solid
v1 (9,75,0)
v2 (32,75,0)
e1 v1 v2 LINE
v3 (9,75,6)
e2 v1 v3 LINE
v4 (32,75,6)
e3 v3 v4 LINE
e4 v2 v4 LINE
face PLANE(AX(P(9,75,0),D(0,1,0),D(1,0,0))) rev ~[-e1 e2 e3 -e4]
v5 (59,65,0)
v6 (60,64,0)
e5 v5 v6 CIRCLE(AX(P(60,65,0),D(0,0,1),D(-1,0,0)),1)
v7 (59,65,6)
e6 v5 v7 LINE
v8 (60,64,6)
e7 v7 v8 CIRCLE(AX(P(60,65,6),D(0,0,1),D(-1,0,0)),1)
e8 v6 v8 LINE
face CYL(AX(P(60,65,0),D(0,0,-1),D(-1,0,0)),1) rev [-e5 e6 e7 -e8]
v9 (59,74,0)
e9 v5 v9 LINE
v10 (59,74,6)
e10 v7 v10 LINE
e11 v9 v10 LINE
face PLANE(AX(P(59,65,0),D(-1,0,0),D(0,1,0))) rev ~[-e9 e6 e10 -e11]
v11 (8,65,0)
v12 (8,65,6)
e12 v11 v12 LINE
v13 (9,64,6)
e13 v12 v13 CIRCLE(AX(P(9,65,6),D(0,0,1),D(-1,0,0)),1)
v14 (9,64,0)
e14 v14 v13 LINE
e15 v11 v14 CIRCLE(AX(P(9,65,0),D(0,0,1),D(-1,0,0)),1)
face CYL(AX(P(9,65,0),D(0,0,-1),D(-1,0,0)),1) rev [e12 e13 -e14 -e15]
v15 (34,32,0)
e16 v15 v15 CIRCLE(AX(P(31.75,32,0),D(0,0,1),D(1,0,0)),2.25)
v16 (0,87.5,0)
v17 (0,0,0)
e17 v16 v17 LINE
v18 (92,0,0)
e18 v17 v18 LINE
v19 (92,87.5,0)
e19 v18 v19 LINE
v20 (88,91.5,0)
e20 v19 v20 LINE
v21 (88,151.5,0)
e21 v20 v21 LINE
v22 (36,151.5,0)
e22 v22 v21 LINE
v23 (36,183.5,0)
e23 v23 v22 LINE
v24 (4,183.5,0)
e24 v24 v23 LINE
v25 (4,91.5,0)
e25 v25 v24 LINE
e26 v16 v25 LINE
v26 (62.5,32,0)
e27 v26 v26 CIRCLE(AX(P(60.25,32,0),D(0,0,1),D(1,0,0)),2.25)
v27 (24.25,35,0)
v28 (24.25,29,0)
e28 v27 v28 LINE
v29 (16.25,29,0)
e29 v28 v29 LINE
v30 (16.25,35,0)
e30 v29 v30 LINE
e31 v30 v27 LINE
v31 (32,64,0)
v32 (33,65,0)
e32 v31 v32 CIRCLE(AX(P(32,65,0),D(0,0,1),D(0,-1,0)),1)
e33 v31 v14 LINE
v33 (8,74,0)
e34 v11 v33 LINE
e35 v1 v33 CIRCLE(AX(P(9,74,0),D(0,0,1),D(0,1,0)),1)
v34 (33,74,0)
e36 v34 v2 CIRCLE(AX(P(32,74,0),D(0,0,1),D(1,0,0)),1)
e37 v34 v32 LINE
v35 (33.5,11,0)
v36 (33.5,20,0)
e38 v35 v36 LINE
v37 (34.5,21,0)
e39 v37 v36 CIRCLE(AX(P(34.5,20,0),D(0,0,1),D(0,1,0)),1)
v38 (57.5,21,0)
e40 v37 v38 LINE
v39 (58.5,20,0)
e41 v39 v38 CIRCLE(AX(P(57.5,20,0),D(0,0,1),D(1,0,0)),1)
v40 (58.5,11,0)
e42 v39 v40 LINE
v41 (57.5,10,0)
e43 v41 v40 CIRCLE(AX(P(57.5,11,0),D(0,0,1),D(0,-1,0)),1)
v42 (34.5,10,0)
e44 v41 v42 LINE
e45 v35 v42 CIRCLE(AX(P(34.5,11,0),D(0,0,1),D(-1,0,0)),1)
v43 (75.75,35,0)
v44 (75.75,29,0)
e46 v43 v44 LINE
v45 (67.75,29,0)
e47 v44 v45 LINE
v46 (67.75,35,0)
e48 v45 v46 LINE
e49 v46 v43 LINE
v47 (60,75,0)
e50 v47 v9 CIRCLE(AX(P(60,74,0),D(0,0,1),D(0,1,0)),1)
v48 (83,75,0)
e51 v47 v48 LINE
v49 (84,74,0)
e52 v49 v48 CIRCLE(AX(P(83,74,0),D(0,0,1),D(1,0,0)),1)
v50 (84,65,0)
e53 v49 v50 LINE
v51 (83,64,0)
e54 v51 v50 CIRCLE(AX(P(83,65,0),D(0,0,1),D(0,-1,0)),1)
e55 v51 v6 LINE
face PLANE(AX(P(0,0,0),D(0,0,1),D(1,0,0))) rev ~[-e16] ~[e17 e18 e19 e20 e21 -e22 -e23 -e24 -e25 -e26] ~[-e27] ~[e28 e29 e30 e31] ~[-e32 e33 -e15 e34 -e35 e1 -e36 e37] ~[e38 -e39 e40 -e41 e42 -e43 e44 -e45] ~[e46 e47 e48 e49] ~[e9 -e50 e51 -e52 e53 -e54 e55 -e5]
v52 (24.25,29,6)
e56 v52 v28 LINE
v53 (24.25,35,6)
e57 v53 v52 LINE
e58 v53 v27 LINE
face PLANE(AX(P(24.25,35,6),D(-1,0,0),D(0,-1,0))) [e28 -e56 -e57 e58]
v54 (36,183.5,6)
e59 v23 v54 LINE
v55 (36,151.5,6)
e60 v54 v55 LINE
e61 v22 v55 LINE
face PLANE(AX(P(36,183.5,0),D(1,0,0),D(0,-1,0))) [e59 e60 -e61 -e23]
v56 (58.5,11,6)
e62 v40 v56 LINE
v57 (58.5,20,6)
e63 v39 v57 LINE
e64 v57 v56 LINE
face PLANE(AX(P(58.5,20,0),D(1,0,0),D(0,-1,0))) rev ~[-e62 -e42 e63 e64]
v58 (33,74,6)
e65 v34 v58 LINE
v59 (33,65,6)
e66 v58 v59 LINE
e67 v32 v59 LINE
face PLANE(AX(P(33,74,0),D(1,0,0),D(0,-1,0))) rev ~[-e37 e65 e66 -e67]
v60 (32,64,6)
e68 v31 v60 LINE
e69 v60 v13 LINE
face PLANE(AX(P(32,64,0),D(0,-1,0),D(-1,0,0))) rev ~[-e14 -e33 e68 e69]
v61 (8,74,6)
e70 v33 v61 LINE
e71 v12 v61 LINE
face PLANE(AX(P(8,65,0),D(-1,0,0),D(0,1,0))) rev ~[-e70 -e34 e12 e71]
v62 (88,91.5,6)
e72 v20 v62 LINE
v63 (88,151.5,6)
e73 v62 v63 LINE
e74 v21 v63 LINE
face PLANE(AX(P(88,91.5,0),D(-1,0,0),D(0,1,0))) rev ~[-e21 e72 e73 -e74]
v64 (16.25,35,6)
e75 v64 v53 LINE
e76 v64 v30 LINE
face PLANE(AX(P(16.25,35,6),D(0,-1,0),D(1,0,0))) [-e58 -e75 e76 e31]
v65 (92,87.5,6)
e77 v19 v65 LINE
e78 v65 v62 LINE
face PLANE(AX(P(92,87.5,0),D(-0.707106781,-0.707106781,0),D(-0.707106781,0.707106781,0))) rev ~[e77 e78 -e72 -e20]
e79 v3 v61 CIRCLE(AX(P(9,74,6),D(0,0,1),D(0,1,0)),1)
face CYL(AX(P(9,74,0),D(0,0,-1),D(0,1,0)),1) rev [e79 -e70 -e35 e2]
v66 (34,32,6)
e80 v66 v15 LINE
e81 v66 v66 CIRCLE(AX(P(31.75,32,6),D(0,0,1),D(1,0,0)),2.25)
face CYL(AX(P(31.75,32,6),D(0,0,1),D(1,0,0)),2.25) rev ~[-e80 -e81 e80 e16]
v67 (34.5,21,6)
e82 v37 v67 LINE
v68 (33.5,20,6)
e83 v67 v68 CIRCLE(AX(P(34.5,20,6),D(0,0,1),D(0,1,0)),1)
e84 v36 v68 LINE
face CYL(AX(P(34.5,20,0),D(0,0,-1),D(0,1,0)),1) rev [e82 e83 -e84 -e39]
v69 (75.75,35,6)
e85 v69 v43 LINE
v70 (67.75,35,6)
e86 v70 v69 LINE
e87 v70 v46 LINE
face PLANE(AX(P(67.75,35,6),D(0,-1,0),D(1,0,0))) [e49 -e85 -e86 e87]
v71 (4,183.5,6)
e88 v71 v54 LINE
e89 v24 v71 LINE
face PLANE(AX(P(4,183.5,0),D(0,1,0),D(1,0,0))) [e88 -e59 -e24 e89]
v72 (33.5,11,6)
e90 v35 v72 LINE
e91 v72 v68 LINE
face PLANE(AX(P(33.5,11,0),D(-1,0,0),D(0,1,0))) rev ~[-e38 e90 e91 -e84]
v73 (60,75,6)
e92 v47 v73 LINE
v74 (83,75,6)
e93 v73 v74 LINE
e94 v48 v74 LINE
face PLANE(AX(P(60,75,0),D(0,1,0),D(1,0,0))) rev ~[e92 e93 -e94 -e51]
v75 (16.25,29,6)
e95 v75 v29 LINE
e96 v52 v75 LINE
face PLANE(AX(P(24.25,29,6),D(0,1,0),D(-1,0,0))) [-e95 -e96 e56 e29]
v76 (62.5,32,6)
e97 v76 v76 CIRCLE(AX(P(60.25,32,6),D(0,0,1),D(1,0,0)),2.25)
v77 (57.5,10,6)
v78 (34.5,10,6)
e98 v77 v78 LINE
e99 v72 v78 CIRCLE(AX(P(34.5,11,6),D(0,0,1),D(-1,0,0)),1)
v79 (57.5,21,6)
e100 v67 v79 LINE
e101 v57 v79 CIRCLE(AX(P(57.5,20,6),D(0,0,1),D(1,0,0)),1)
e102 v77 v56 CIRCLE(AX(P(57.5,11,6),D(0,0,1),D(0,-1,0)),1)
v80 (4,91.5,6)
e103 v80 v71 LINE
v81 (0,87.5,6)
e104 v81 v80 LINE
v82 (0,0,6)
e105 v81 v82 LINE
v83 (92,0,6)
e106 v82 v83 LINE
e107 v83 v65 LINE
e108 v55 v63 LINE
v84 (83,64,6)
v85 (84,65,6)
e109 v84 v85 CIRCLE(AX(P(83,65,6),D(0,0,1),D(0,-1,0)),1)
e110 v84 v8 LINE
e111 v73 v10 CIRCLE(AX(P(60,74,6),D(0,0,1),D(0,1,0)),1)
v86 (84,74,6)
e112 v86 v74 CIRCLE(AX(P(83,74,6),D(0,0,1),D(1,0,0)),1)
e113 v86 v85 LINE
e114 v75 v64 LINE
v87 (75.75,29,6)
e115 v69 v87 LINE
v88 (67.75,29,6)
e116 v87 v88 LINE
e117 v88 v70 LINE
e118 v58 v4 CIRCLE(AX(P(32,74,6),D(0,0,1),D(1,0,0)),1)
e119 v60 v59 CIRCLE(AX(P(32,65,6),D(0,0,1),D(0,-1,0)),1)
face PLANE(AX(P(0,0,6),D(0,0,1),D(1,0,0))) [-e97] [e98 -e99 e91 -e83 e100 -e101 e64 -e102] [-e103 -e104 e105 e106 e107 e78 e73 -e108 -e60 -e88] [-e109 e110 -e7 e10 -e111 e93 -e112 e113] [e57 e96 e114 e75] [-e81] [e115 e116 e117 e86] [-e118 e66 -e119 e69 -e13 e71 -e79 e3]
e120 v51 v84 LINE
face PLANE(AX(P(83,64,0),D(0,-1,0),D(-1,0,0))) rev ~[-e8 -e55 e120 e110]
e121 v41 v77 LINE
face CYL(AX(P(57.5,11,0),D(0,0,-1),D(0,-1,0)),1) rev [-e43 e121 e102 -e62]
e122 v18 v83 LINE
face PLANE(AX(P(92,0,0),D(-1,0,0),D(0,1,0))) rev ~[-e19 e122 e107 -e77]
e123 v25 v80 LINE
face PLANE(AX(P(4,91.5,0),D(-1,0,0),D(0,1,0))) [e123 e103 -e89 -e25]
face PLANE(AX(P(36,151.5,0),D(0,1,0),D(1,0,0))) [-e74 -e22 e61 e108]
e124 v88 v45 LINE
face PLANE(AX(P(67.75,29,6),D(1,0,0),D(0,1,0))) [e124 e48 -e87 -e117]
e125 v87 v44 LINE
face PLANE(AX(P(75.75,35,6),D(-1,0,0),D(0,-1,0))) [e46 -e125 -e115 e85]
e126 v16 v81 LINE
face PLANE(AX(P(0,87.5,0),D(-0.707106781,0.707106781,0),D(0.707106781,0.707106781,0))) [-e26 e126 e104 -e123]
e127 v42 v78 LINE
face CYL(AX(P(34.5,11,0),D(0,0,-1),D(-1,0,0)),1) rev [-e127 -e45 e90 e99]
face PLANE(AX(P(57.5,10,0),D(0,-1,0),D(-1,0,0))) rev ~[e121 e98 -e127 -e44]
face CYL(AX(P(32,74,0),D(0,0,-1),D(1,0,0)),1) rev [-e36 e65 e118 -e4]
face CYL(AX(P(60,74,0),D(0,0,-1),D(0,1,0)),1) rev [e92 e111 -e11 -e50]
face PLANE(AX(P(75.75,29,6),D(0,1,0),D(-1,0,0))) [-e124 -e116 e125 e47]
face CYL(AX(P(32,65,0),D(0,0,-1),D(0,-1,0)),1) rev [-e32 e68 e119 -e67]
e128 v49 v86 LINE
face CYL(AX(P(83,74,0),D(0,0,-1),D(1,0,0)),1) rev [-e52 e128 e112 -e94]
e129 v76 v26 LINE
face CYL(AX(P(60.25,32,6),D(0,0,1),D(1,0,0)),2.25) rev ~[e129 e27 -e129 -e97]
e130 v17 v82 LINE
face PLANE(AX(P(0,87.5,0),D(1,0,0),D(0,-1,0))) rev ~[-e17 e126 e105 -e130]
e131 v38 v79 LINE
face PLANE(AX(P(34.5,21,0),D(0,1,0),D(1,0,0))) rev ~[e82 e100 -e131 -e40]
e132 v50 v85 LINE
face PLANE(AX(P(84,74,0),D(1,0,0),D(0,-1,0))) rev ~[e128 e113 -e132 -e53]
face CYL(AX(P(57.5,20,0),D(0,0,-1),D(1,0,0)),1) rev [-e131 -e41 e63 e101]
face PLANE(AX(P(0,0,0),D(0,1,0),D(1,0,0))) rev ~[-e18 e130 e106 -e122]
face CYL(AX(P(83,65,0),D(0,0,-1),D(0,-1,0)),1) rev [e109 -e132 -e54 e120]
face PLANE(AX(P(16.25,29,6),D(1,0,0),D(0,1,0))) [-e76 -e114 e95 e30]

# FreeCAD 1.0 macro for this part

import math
import FreeCAD as App
import Part
import Sketcher

V = App.Vector


def add_polygon(sketch, points):
    """Adds a closed chain of lines whose ends are joined by coincident constraints."""
    first, n = sketch.GeometryCount, len(points)
    for a, b in zip(points, points[1:] + points[:1]):
        sketch.addGeometry(Part.LineSegment(App.Vector(*a, 0), App.Vector(*b, 0)), False)
    for i in range(n):
        sketch.addConstraint(Sketcher.Constraint("Coincident", first + i, 2, first + (i + 1) % n, 1))

doc = App.newDocument("Part")
body = doc.addObject("PartDesign::Body", "Body")

sketch1 = body.newObject("Sketcher::SketchObject", "Sketch")
sketch1.AttachmentSupport = (doc.getObject("XY_Plane"), [""])
sketch1.MapMode = "FlatFace"
add_polygon(sketch1, [(0, 87.5), (0, 0), (92, 0), (92, 87.5), (88, 91.5), (88, 151.5), (36, 151.5), (36, 183.5), (4, 183.5), (4, 91.5)])
sketch1.addGeometry(Part.ArcOfCircle(Part.Circle(V(9, 74, 0), V(0, 0, 1), 1), math.radians(90), math.radians(180)), False)
sketch1.addGeometry(Part.LineSegment(V(9, 75, 0), V(32, 75, 0)), False)
sketch1.addGeometry(Part.ArcOfCircle(Part.Circle(V(32, 74, 0), V(0, 0, 1), 1), math.radians(0), math.radians(90)), False)
sketch1.addGeometry(Part.LineSegment(V(33, 74, 0), V(33, 65, 0)), False)
sketch1.addGeometry(Part.ArcOfCircle(Part.Circle(V(32, 65, 0), V(0, 0, 1), 1), math.radians(-90), math.radians(0)), False)
sketch1.addGeometry(Part.LineSegment(V(32, 64, 0), V(9, 64, 0)), False)
sketch1.addGeometry(Part.ArcOfCircle(Part.Circle(V(9, 65, 0), V(0, 0, 1), 1), math.radians(180), math.radians(270)), False)
sketch1.addGeometry(Part.LineSegment(V(8, 65, 0), V(8, 74, 0)), False)
sketch1.addGeometry(Part.ArcOfCircle(Part.Circle(V(34.5, 20, 0), V(0, 0, 1), 1), math.radians(90), math.radians(180)), False)
sketch1.addGeometry(Part.LineSegment(V(34.5, 21, 0), V(57.5, 21, 0)), False)
sketch1.addGeometry(Part.ArcOfCircle(Part.Circle(V(57.5, 20, 0), V(0, 0, 1), 1), math.radians(0), math.radians(90)), False)
sketch1.addGeometry(Part.LineSegment(V(58.5, 20, 0), V(58.5, 11, 0)), False)
sketch1.addGeometry(Part.ArcOfCircle(Part.Circle(V(57.5, 11, 0), V(0, 0, 1), 1), math.radians(-90), math.radians(0)), False)
sketch1.addGeometry(Part.LineSegment(V(57.5, 10, 0), V(34.5, 10, 0)), False)
sketch1.addGeometry(Part.ArcOfCircle(Part.Circle(V(34.5, 11, 0), V(0, 0, 1), 1), math.radians(180), math.radians(270)), False)
sketch1.addGeometry(Part.LineSegment(V(33.5, 11, 0), V(33.5, 20, 0)), False)
sketch1.addGeometry(Part.ArcOfCircle(Part.Circle(V(60, 65, 0), V(0, 0, 1), 1), math.radians(180), math.radians(270)), False)
sketch1.addGeometry(Part.LineSegment(V(59, 65, 0), V(59, 74, 0)), False)
sketch1.addGeometry(Part.ArcOfCircle(Part.Circle(V(60, 74, 0), V(0, 0, 1), 1), math.radians(90), math.radians(180)), False)
sketch1.addGeometry(Part.LineSegment(V(60, 75, 0), V(83, 75, 0)), False)
sketch1.addGeometry(Part.ArcOfCircle(Part.Circle(V(83, 74, 0), V(0, 0, 1), 1), math.radians(0), math.radians(90)), False)
sketch1.addGeometry(Part.LineSegment(V(84, 74, 0), V(84, 65, 0)), False)
sketch1.addGeometry(Part.ArcOfCircle(Part.Circle(V(83, 65, 0), V(0, 0, 1), 1), math.radians(-90), math.radians(0)), False)
sketch1.addGeometry(Part.LineSegment(V(83, 64, 0), V(60, 64, 0)), False)
sketch1.addConstraint([
    Sketcher.Constraint("Tangent", 10, 1, 11, 1),
    Sketcher.Constraint("Tangent", 11, 2, 12, 2),
    Sketcher.Constraint("Tangent", 12, 1, 13, 1),
    Sketcher.Constraint("Tangent", 13, 2, 14, 2),
    Sketcher.Constraint("Tangent", 14, 1, 15, 1),
    Sketcher.Constraint("Tangent", 15, 2, 16, 2),
    Sketcher.Constraint("Tangent", 16, 1, 17, 1),
    Sketcher.Constraint("Tangent", 17, 2, 10, 2),
    Sketcher.Constraint("Tangent", 18, 1, 19, 1),
    Sketcher.Constraint("Tangent", 19, 2, 20, 2),
    Sketcher.Constraint("Tangent", 20, 1, 21, 1),
    Sketcher.Constraint("Tangent", 21, 2, 22, 2),
    Sketcher.Constraint("Tangent", 22, 1, 23, 1),
    Sketcher.Constraint("Tangent", 23, 2, 24, 2),
    Sketcher.Constraint("Tangent", 24, 1, 25, 1),
    Sketcher.Constraint("Tangent", 25, 2, 18, 2),
    Sketcher.Constraint("Tangent", 26, 1, 27, 1),
    Sketcher.Constraint("Tangent", 27, 2, 28, 2),
    Sketcher.Constraint("Tangent", 28, 1, 29, 1),
    Sketcher.Constraint("Tangent", 29, 2, 30, 2),
    Sketcher.Constraint("Tangent", 30, 1, 31, 1),
    Sketcher.Constraint("Tangent", 31, 2, 32, 2),
    Sketcher.Constraint("Tangent", 32, 1, 33, 1),
    Sketcher.Constraint("Tangent", 33, 2, 26, 2),
    Sketcher.Constraint("Vertical", 0),
    Sketcher.Constraint("Horizontal", 1),
    Sketcher.Constraint("Vertical", 2),
    Sketcher.Constraint("Vertical", 4),
    Sketcher.Constraint("Horizontal", 5),
    Sketcher.Constraint("Vertical", 6),
    Sketcher.Constraint("Horizontal", 7),
    Sketcher.Constraint("Vertical", 8),
    Sketcher.Constraint("Horizontal", 11),
    Sketcher.Constraint("Vertical", 13),
    Sketcher.Constraint("Horizontal", 15),
    Sketcher.Constraint("Vertical", 17),
    Sketcher.Constraint("Horizontal", 19),
    Sketcher.Constraint("Vertical", 21),
    Sketcher.Constraint("Horizontal", 23),
    Sketcher.Constraint("Vertical", 25),
    Sketcher.Constraint("Vertical", 27),
    Sketcher.Constraint("Horizontal", 29),
    Sketcher.Constraint("Vertical", 31),
    Sketcher.Constraint("Horizontal", 33),
    Sketcher.Constraint("Coincident", 0, 2, -1, 1),
    Sketcher.Constraint("Equal", 10, 12),
    Sketcher.Constraint("Equal", 12, 14),
    Sketcher.Constraint("Equal", 14, 16),
    Sketcher.Constraint("Equal", 16, 18),
    Sketcher.Constraint("Equal", 18, 20),
    Sketcher.Constraint("Equal", 20, 22),
    Sketcher.Constraint("Equal", 22, 24),
    Sketcher.Constraint("Equal", 24, 26),
    Sketcher.Constraint("Equal", 26, 28),
    Sketcher.Constraint("Equal", 28, 30),
    Sketcher.Constraint("Equal", 30, 32),
    Sketcher.Constraint("Perpendicular", 3, 9),
    Sketcher.Constraint("Horizontal", 16, 3, 26, 3),
    Sketcher.Constraint("Horizontal", 12, 3, 28, 3),
    Sketcher.Constraint("Horizontal", 3, 2, 8, 2),
    Sketcher.Constraint("Horizontal", 2, 2, 9, 2),
    Sketcher.Constraint("Equal", 15, 19),
    Sketcher.Constraint("Equal", 23, 29),
    Sketcher.Constraint("Equal", 7, 6),
    Sketcher.Constraint("Equal", 1, 8),
    Sketcher.Constraint("Equal", 17, 21),
    Sketcher.Constraint("Equal", 3, 9),
    Sketcher.Constraint("Radius", 10, 1.0),
    Sketcher.Constraint("DistanceX", 1, 1, 1, 2, 92.0),
    Sketcher.Constraint("DistanceX", 7, 2, 7, 1, 32.0),
    Sketcher.Constraint("DistanceY", 0, 2, 0, 1, 87.5),
    Sketcher.Constraint("DistanceX", -1, 1, 12, 3, 32.0),
    Sketcher.Constraint("DistanceY", -1, 1, 22, 3, 11.0),
    Sketcher.Constraint("DistanceX", -1, 1, 7, 2, 4.0),
    Sketcher.Constraint("DistanceX", -1, 1, 16, 1, 8.0),
    Sketcher.Constraint("DistanceY", 18, 3, 12, 3, 54.0),
    Sketcher.Constraint("DistanceX", 28, 3, 2, 2, 32.0),
    Sketcher.Constraint("DistanceY", 16, 3, 10, 1, 10.0),
    Sketcher.Constraint("DistanceX", -1, 1, 18, 3, 34.5),
])
pad1 = body.newObject("PartDesign::Pad", "Pad")
pad1.Profile = sketch1
pad1.Length = 6

sketch2 = body.newObject("Sketcher::SketchObject", "Sketch001")
sketch2.AttachmentSupport = (doc.getObject("XY_Plane"), [""])
sketch2.MapMode = "FlatFace"
sketch2.AttachmentOffset = App.Placement(V(0, 0, 6), App.Rotation())
sketch2.addGeometry([
    Part.Circle(V(31.8, 32, 0), V(0, 0, 1), 2.2),
    Part.Circle(V(60.2, 32, 0), V(0, 0, 1), 2.2),
], False)
sketch2.addConstraint([
    Sketcher.Constraint("Equal", 0, 1),
    Sketcher.Constraint("Horizontal", 0, 3, 1, 3),
    Sketcher.Constraint("Diameter", 0, 4.5),
    Sketcher.Constraint("DistanceX", 0, 3, 1, 3, 28.5),
    Sketcher.Constraint("DistanceY", -1, 1, 0, 3, 32.0),
    Sketcher.Constraint("DistanceX", -1, 1, 0, 3, 31.75),
])
pocket1 = body.newObject("PartDesign::Pocket", "Pocket")
pocket1.Profile = sketch2
pocket1.Length = 6

sketch3 = body.newObject("Sketcher::SketchObject", "Sketch002")
sketch3.AttachmentSupport = (doc.getObject("XY_Plane"), [""])
sketch3.MapMode = "FlatFace"
sketch3.AttachmentOffset = App.Placement(V(0, 0, 6), App.Rotation())
add_polygon(sketch3, [(24, 35), (16, 35), (16, 29), (24, 29)])
add_polygon(sketch3, [(76, 35), (68, 35), (68, 29), (76, 29)])
sketch3.addConstraint([
    Sketcher.Constraint("Horizontal", 0),
    Sketcher.Constraint("Vertical", 1),
    Sketcher.Constraint("Horizontal", 2),
    Sketcher.Constraint("Vertical", 3),
    Sketcher.Constraint("Horizontal", 4),
    Sketcher.Constraint("Vertical", 5),
    Sketcher.Constraint("Horizontal", 6),
    Sketcher.Constraint("Vertical", 7),
    Sketcher.Constraint("Horizontal", 3, 2, 4, 2),
    Sketcher.Constraint("Horizontal", 2, 2, 5, 2),
    Sketcher.Constraint("Equal", 2, 4),
    Sketcher.Constraint("DistanceX", 0, 2, 0, 1, 8.0),
    Sketcher.Constraint("DistanceY", 1, 2, 1, 1, 6.0),
    Sketcher.Constraint("DistanceY", -1, 1, 0, 2, 35.0),
    Sketcher.Constraint("DistanceX", 3, 2, 4, 2, 43.5),
    Sketcher.Constraint("DistanceX", -1, 1, 0, 2, 16.25),
])
pocket2 = body.newObject("PartDesign::Pocket", "Pocket001")
pocket2.Profile = sketch3
pocket2.Length = 6

doc.recompute()
